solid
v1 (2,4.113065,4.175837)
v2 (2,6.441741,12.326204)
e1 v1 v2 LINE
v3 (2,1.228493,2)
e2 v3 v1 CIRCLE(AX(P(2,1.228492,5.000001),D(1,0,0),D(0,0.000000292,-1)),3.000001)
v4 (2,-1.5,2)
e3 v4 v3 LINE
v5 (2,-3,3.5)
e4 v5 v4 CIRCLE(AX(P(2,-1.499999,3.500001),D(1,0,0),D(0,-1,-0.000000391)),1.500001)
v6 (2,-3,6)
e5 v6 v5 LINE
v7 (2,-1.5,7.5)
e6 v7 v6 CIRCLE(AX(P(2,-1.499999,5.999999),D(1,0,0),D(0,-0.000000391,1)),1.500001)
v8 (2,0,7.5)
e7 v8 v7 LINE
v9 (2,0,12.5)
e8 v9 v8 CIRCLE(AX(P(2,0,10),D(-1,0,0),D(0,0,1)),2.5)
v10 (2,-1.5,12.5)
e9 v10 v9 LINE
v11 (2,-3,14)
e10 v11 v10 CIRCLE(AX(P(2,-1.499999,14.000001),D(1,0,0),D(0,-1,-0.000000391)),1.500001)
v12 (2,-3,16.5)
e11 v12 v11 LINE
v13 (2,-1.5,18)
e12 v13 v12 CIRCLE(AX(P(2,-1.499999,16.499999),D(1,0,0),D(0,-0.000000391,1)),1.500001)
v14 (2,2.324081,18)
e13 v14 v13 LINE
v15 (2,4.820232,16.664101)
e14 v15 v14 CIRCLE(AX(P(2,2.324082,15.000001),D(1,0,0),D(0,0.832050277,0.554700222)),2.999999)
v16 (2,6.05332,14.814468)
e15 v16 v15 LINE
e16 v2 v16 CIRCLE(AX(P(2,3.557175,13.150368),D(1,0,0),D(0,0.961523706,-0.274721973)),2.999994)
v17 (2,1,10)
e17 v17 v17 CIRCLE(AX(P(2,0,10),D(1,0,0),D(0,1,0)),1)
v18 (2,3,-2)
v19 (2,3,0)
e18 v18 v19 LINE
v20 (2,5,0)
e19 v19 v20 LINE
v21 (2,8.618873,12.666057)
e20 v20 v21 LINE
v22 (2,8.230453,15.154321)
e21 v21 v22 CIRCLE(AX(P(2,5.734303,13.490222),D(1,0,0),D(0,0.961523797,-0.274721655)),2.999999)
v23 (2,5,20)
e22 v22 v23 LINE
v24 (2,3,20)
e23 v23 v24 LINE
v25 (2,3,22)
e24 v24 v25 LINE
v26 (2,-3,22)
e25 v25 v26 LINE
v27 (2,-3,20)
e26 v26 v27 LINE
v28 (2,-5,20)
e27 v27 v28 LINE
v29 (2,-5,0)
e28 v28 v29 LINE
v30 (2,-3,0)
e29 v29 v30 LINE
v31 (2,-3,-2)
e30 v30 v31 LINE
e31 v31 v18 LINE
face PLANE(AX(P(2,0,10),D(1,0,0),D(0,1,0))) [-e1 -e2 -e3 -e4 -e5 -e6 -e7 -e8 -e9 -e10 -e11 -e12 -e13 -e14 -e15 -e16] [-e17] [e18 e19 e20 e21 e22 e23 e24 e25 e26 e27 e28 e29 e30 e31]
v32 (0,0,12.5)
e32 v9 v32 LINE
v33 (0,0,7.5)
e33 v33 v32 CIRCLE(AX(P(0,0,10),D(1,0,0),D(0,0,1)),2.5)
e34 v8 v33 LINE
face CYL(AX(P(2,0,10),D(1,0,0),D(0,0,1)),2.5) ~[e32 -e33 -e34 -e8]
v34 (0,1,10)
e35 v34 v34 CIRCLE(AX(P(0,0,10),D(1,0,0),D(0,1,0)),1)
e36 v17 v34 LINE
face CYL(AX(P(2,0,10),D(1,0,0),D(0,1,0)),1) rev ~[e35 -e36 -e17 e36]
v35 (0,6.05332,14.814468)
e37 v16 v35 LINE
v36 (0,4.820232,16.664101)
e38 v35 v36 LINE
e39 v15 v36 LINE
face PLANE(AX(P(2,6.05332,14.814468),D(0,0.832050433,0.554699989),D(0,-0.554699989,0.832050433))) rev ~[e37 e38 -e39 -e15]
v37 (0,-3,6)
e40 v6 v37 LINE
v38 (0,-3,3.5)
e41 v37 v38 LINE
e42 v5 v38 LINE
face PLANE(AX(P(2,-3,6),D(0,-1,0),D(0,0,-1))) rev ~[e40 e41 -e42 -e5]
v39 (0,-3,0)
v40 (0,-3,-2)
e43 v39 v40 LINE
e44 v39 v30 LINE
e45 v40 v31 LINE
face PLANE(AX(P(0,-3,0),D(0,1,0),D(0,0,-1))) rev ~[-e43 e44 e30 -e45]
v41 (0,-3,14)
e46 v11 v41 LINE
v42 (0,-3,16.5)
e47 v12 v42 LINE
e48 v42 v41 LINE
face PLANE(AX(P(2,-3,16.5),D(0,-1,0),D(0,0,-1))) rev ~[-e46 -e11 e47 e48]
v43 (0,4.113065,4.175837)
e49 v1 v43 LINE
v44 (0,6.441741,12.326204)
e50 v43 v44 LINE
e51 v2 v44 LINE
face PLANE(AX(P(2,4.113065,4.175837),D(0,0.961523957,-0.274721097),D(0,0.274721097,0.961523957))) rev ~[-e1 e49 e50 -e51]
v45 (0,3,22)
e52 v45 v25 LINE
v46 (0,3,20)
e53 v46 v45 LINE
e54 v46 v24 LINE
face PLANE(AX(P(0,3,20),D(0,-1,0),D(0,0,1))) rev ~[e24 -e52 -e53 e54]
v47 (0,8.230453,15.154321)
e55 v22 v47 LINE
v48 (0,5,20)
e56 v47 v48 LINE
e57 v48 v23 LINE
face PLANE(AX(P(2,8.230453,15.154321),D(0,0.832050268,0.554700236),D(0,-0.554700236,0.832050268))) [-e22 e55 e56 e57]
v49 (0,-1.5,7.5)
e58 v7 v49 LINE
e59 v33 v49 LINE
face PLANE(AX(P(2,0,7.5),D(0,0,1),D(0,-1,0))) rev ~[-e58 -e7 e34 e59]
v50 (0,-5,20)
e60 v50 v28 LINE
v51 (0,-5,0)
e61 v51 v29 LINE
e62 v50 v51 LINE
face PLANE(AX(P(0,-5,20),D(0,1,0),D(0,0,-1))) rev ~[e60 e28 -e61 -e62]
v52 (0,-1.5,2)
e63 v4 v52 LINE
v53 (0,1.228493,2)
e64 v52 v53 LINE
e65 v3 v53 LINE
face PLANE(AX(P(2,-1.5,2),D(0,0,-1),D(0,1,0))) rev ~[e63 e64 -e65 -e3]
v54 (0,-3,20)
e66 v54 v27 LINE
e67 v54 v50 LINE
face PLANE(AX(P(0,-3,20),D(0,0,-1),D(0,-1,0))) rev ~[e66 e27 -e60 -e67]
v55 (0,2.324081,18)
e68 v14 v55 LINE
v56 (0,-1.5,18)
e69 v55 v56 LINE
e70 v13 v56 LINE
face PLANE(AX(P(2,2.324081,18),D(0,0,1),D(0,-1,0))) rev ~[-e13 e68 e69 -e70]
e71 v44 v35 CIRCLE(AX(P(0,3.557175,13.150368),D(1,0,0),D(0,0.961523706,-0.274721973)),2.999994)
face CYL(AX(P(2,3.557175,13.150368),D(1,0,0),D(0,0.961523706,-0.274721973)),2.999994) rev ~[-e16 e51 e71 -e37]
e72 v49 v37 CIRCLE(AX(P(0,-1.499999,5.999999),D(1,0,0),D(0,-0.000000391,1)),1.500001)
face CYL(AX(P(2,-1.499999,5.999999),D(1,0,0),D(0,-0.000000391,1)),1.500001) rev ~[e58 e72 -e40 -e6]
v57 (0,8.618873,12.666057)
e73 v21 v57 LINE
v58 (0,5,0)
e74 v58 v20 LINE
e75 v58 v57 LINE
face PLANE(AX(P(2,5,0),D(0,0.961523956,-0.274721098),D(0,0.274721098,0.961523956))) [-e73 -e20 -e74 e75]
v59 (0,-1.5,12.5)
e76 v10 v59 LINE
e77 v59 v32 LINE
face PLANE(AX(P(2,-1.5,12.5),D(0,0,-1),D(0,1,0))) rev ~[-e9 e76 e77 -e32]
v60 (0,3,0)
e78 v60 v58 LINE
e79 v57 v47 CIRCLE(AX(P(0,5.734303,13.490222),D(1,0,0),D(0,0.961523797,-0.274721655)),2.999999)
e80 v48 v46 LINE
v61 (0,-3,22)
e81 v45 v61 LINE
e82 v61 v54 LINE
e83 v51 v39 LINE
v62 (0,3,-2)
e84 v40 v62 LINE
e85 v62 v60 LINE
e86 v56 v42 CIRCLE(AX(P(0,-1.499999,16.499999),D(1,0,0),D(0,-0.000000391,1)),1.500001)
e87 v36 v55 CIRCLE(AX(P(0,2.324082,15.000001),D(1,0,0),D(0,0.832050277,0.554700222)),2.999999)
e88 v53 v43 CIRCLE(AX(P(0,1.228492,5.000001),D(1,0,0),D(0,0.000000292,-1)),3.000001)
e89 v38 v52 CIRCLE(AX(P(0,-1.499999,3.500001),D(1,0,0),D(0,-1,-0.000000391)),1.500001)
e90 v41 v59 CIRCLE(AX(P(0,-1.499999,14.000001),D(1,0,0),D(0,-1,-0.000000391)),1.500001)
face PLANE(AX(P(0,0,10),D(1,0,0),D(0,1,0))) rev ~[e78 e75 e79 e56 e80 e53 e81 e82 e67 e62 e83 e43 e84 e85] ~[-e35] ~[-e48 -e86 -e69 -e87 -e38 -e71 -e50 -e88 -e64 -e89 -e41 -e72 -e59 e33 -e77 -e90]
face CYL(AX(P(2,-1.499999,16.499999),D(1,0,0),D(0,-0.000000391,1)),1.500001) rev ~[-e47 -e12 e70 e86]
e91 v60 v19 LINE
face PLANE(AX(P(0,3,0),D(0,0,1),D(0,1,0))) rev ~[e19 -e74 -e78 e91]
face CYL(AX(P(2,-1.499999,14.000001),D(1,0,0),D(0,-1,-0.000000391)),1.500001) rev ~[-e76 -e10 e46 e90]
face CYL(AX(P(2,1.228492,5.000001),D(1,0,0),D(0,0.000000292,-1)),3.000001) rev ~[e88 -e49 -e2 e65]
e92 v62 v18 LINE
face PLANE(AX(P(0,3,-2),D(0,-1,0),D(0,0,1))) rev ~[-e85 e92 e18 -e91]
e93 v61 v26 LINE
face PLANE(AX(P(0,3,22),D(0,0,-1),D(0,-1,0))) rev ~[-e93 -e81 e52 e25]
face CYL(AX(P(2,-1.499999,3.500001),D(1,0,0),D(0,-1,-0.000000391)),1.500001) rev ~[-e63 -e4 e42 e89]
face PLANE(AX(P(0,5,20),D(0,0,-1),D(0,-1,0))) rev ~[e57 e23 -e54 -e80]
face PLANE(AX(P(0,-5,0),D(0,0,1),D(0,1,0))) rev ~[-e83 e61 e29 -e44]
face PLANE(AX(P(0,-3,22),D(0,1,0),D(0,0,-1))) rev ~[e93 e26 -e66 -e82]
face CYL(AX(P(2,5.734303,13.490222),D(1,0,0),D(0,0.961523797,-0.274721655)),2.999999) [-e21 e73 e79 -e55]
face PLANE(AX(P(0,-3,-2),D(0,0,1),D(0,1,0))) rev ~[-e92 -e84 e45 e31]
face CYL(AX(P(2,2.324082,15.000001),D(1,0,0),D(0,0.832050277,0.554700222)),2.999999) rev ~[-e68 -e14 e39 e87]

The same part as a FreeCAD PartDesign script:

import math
import FreeCAD as App
import Part
import Sketcher

V = App.Vector


def add_polygon(sketch, points):
    """Adds a closed chain of lines whose ends are joined by coincident constraints."""
    first, n = sketch.GeometryCount, len(points)
    for a, b in zip(points, points[1:] + points[:1]):
        sketch.addGeometry(Part.LineSegment(App.Vector(*a, 0), App.Vector(*b, 0)), False)
    for i in range(n):
        sketch.addConstraint(Sketcher.Constraint("Coincident", first + i, 2, first + (i + 1) % n, 1))

doc = App.newDocument("Part")
body = doc.addObject("PartDesign::Body", "Body")

# Sketch on YZ plane
sketch1 = body.newObject("Sketcher::SketchObject", "Sketch")
sketch1.AttachmentSupport = (doc.getObject("YZ_Plane"), [""])
sketch1.MapMode = "FlatFace"
add_polygon(sketch1, [(-3, 0), (-3, -2), (3, -2), (3, 0), (5, 0), (5, 20), (3, 20), (3, 22), (-3, 22), (-3, 20), (-5, 20), (-5, 0)])  # lines 0-11
sketch1.addConstraint([
    Sketcher.Constraint("Vertical", 0),
    Sketcher.Constraint("Horizontal", 1),
    Sketcher.Constraint("Vertical", 2),
    Sketcher.Constraint("Horizontal", 3),
    Sketcher.Constraint("Vertical", 4),
    Sketcher.Constraint("Horizontal", 5),
    Sketcher.Constraint("Vertical", 6),
    Sketcher.Constraint("Horizontal", 7),
    Sketcher.Constraint("Vertical", 8),
    Sketcher.Constraint("Horizontal", 9),
    Sketcher.Constraint("Vertical", 10),
    Sketcher.Constraint("Horizontal", 11),
    Sketcher.Constraint("Symmetric", 3, 2, 10, 2, -1, 1),
    Sketcher.Constraint("Symmetric", 5, 2, 8, 2, -2),
    Sketcher.Constraint("Symmetric", 2, 2, 11, 2, -2),
    Sketcher.Constraint("Vertical", 2, 2, 5, 2),
    Sketcher.Constraint("Equal", 11, 0),
    Sketcher.Constraint("Equal", 2, 6),
    Sketcher.Constraint("DistanceX", 1, 1, 1, 2, 6.0),
    Sketcher.Constraint("DistanceX", 3, 1, 3, 2, 2.0),
    Sketcher.Constraint("DistanceY", 4, 1, 4, 2, 20.0),
])
pad1 = body.newObject("PartDesign::Pad", "Pad")
pad1.Profile = sketch1
pad1.Length = 2

# Sketch on YZ plane
sketch2 = body.newObject("Sketcher::SketchObject", "Sketch001")
sketch2.AttachmentSupport = (doc.getObject("YZ_Plane"), [""])
sketch2.MapMode = "FlatFace"
sketch2.AttachmentOffset = App.Placement(V(0, 0, 2), App.Rotation())
sketch2.addGeometry([
    Part.LineSegment(V(3, 0, 0), V(5, 0, 0)),  # 0
    Part.LineSegment(V(5, 0, 0), V(8.6, 12.7, 0)),  # 1
    Part.ArcOfCircle(Part.Circle(V(5.7, 13.5, 0), V(0, 0, 1), 3), math.radians(-16), math.radians(34)),  # 2
    Part.LineSegment(V(8.2, 15.2, 0), V(5, 20, 0)),  # 3
    Part.LineSegment(V(5, 20, 0), V(3, 20, 0)),  # 4
    Part.LineSegment(V(3, 20, 0), V(3, 0, 0)),  # 5
], False)
sketch2.addConstraint([
    Sketcher.Constraint("Coincident", 0, 2, 1, 1),
    Sketcher.Constraint("Tangent", 1, 2, 2, 1),
    Sketcher.Constraint("Tangent", 2, 2, 3, 1),
    Sketcher.Constraint("Coincident", 3, 2, 4, 1),
    Sketcher.Constraint("Coincident", 4, 2, 5, 1),
    Sketcher.Constraint("Coincident", 5, 2, 0, 1),
    Sketcher.Constraint("Horizontal", 0),
    Sketcher.Constraint("Horizontal", 4),
    Sketcher.Constraint("Vertical", 5),
    Sketcher.Constraint("PointOnObject", 0, 2, -1),
    Sketcher.Constraint("Vertical", 0, 2, 3, 2),
    Sketcher.Constraint("Radius", 2, 2.999999),
    Sketcher.Constraint("DistanceX", 0, 1, 0, 2, 2.0),
    Sketcher.Constraint("DistanceY", 5, 2, 5, 1, 20.0),
    Sketcher.Constraint("DistanceX", -1, 1, 0, 2, 5.0),
    Sketcher.Constraint("DistanceY", 2, 3, 2, 2, 1.664099),
    Sketcher.Constraint("Distance", 3, 5.823782),
])
pad2 = body.newObject("PartDesign::Pad", "Pad001")
pad2.Profile = sketch2
pad2.Length = 2
pad2.Reversed = True

# Sketch on YZ plane
sketch3 = body.newObject("Sketcher::SketchObject", "Sketch002")
sketch3.AttachmentSupport = (doc.getObject("YZ_Plane"), [""])
sketch3.MapMode = "FlatFace"
sketch3.AttachmentOffset = App.Placement(V(0, 0, 2), App.Rotation())
sketch3.addGeometry(Part.Circle(V(0, 10, 0), V(0, 0, 1), 1), False)
sketch3.addConstraint([
    Sketcher.Constraint("PointOnObject", 0, 3, -2),
    Sketcher.Constraint("Diameter", 0, 2.0),
    Sketcher.Constraint("DistanceY", -1, 1, 0, 3, 10.0),
])
pocket1 = body.newObject("PartDesign::Pocket", "Pocket")
pocket1.Profile = sketch3
pocket1.Type = "ThroughAll"

# Sketch on YZ plane
sketch4 = body.newObject("Sketcher::SketchObject", "Sketch003")
sketch4.AttachmentSupport = (doc.getObject("YZ_Plane"), [""])
sketch4.MapMode = "FlatFace"
sketch4.AttachmentOffset = App.Placement(V(0, 0, 2), App.Rotation())
sketch4.addGeometry([
    Part.ArcOfCircle(Part.Circle(V(1.228492, 5.000001, 0), V(0, 0, 1), 3.000001), math.radians(-89.999983), math.radians(-15.945406)),  # 0
    Part.LineSegment(V(4.113065, 4.175837, 0), V(6.441741, 12.326204, 0)),  # 1
    Part.ArcOfCircle(Part.Circle(V(3.557175, 13.150368, 0), V(0, 0, 1), 2.999994), math.radians(-15.945446), math.radians(33.690119)),  # 2
    Part.LineSegment(V(6.05332, 14.814468, 0), V(4.820232, 16.664101, 0)),  # 3
    Part.ArcOfCircle(Part.Circle(V(2.324082, 15.000001, 0), V(0, 0, 1), 2.999999), math.radians(33.690069), math.radians(90.000015)),  # 4
    Part.LineSegment(V(2.324081, 18, 0), V(-1.5, 18, 0)),  # 5
    Part.ArcOfCircle(Part.Circle(V(-1.499999, 16.499999, 0), V(0, 0, 1), 1.500001), math.radians(90.000022), math.radians(179.999978)),  # 6
    Part.LineSegment(V(-3, 16.5, 0), V(-3, 14, 0)),  # 7
    Part.ArcOfCircle(Part.Circle(V(-1.499999, 14.000001, 0), V(0, 0, 1), 1.500001), math.radians(-179.999978), math.radians(-90.000022)),  # 8
    Part.LineSegment(V(-1.5, 12.5, 0), V(0, 12.5, 0)),  # 9
    Part.ArcOfCircle(Part.Circle(V(0, 10, 0), V(0, 0, 1), 2.5), math.radians(-90), math.radians(90)),  # 10
    Part.LineSegment(V(0, 7.5, 0), V(-1.5, 7.5, 0)),  # 11
    Part.ArcOfCircle(Part.Circle(V(-1.499999, 5.999999, 0), V(0, 0, 1), 1.500001), math.radians(90.000022), math.radians(179.999978)),  # 12
    Part.LineSegment(V(-3, 6, 0), V(-3, 3.5, 0)),  # 13
    Part.ArcOfCircle(Part.Circle(V(-1.499999, 3.500001, 0), V(0, 0, 1), 1.500001), math.radians(-179.999978), math.radians(-90.000022)),  # 14
    Part.LineSegment(V(-1.5, 2, 0), V(1.228493, 2, 0)),  # 15
], False)
sketch4.addConstraint([
    Sketcher.Constraint("Coincident", 0, 2, 1, 1),
    Sketcher.Constraint("Coincident", 1, 2, 2, 1),
    Sketcher.Constraint("Coincident", 2, 2, 3, 1),
    Sketcher.Constraint("Coincident", 3, 2, 4, 1),
    Sketcher.Constraint("Coincident", 4, 2, 5, 1),
    Sketcher.Constraint("Coincident", 5, 2, 6, 1),
    Sketcher.Constraint("Coincident", 6, 2, 7, 1),
    Sketcher.Constraint("Coincident", 7, 2, 8, 1),
    Sketcher.Constraint("Coincident", 8, 2, 9, 1),
    Sketcher.Constraint("Coincident", 9, 2, 10, 2),
    Sketcher.Constraint("Coincident", 10, 1, 11, 1),
    Sketcher.Constraint("Coincident", 11, 2, 12, 1),
    Sketcher.Constraint("Coincident", 12, 2, 13, 1),
    Sketcher.Constraint("Coincident", 13, 2, 14, 1),
    Sketcher.Constraint("Coincident", 14, 2, 15, 1),
    Sketcher.Constraint("Coincident", 15, 2, 0, 1),
    Sketcher.Constraint("Horizontal", 5),
    Sketcher.Constraint("Vertical", 7),
    Sketcher.Constraint("Horizontal", 9),
    Sketcher.Constraint("Horizontal", 11),
    Sketcher.Constraint("Vertical", 13),
    Sketcher.Constraint("Horizontal", 15),
    Sketcher.Constraint("PointOnObject", 10, 3, -2),
    Sketcher.Constraint("PointOnObject", 9, 2, -2),
    Sketcher.Constraint("PointOnObject", 10, 1, -2),
    Sketcher.Constraint("Radius", 0, 3.000001),
    Sketcher.Constraint("Radius", 4, 2.999999),
    Sketcher.Constraint("Radius", 6, 1.500001),
    Sketcher.Constraint("Radius", 8, 1.500001),
    Sketcher.Constraint("Radius", 10, 2.5),
    Sketcher.Constraint("Radius", 12, 1.500001),
    Sketcher.Constraint("Radius", 14, 1.500001),
    Sketcher.Constraint("DistanceX", 9, 1, 9, 2, 1.5),
    Sketcher.Constraint("DistanceX", 11, 2, 11, 1, 1.5),
    Sketcher.Constraint("DistanceY", 7, 2, 7, 1, 2.5),
    Sketcher.Constraint("DistanceY", 13, 2, 13, 1, 2.5),
    Sketcher.Constraint("DistanceY", -1, 1, 0, 3, 5.000001),
    Sketcher.Constraint("DistanceY", -1, 1, 4, 3, 15.000001),
    Sketcher.Constraint("DistanceY", -1, 1, 8, 3, 14.000001),
    Sketcher.Constraint("DistanceX", 6, 2, -1, 1, 3.0),
    Sketcher.Constraint("DistanceY", -1, 1, 7, 2, 14.0),
    Sketcher.Constraint("DistanceX", 12, 2, -1, 1, 3.0),
    Sketcher.Constraint("DistanceY", -1, 1, 12, 2, 6.0),
    Sketcher.Constraint("DistanceX", 5, 2, -1, 1, 1.5),
    Sketcher.Constraint("DistanceX", 14, 2, -1, 1, 1.5),
    Sketcher.Constraint("Radius", 2, 2.999994),
    Sketcher.Constraint("DistanceX", 5, 2, 5, 1, 3.824081),
    Sketcher.Constraint("DistanceY", -1, 1, 3, 2, 16.664101),
    Sketcher.Constraint("DistanceY", 2, 3, 2, 2, 1.6641),
    Sketcher.Constraint("Distance", 1, 8.47651),
    Sketcher.Constraint("Distance", 3, 2.222982),
    Sketcher.Constraint("DistanceX", 15, 1, 15, 2, 2.728493),
    Sketcher.Constraint("DistanceY", -1, 1, 2, 3, 13.150368),
    Sketcher.Constraint("DistanceX", -1, 1, 4, 3, 2.324082),
    Sketcher.Constraint("DistanceX", -1, 1, 1, 2, 6.441741),
    Sketcher.Constraint("DistanceX", 0, 3, 4, 3, 1.09559),
])
pocket2 = body.newObject("PartDesign::Pocket", "Pocket001")
pocket2.Profile = sketch4
pocket2.Type = "ThroughAll"

doc.recompute()
